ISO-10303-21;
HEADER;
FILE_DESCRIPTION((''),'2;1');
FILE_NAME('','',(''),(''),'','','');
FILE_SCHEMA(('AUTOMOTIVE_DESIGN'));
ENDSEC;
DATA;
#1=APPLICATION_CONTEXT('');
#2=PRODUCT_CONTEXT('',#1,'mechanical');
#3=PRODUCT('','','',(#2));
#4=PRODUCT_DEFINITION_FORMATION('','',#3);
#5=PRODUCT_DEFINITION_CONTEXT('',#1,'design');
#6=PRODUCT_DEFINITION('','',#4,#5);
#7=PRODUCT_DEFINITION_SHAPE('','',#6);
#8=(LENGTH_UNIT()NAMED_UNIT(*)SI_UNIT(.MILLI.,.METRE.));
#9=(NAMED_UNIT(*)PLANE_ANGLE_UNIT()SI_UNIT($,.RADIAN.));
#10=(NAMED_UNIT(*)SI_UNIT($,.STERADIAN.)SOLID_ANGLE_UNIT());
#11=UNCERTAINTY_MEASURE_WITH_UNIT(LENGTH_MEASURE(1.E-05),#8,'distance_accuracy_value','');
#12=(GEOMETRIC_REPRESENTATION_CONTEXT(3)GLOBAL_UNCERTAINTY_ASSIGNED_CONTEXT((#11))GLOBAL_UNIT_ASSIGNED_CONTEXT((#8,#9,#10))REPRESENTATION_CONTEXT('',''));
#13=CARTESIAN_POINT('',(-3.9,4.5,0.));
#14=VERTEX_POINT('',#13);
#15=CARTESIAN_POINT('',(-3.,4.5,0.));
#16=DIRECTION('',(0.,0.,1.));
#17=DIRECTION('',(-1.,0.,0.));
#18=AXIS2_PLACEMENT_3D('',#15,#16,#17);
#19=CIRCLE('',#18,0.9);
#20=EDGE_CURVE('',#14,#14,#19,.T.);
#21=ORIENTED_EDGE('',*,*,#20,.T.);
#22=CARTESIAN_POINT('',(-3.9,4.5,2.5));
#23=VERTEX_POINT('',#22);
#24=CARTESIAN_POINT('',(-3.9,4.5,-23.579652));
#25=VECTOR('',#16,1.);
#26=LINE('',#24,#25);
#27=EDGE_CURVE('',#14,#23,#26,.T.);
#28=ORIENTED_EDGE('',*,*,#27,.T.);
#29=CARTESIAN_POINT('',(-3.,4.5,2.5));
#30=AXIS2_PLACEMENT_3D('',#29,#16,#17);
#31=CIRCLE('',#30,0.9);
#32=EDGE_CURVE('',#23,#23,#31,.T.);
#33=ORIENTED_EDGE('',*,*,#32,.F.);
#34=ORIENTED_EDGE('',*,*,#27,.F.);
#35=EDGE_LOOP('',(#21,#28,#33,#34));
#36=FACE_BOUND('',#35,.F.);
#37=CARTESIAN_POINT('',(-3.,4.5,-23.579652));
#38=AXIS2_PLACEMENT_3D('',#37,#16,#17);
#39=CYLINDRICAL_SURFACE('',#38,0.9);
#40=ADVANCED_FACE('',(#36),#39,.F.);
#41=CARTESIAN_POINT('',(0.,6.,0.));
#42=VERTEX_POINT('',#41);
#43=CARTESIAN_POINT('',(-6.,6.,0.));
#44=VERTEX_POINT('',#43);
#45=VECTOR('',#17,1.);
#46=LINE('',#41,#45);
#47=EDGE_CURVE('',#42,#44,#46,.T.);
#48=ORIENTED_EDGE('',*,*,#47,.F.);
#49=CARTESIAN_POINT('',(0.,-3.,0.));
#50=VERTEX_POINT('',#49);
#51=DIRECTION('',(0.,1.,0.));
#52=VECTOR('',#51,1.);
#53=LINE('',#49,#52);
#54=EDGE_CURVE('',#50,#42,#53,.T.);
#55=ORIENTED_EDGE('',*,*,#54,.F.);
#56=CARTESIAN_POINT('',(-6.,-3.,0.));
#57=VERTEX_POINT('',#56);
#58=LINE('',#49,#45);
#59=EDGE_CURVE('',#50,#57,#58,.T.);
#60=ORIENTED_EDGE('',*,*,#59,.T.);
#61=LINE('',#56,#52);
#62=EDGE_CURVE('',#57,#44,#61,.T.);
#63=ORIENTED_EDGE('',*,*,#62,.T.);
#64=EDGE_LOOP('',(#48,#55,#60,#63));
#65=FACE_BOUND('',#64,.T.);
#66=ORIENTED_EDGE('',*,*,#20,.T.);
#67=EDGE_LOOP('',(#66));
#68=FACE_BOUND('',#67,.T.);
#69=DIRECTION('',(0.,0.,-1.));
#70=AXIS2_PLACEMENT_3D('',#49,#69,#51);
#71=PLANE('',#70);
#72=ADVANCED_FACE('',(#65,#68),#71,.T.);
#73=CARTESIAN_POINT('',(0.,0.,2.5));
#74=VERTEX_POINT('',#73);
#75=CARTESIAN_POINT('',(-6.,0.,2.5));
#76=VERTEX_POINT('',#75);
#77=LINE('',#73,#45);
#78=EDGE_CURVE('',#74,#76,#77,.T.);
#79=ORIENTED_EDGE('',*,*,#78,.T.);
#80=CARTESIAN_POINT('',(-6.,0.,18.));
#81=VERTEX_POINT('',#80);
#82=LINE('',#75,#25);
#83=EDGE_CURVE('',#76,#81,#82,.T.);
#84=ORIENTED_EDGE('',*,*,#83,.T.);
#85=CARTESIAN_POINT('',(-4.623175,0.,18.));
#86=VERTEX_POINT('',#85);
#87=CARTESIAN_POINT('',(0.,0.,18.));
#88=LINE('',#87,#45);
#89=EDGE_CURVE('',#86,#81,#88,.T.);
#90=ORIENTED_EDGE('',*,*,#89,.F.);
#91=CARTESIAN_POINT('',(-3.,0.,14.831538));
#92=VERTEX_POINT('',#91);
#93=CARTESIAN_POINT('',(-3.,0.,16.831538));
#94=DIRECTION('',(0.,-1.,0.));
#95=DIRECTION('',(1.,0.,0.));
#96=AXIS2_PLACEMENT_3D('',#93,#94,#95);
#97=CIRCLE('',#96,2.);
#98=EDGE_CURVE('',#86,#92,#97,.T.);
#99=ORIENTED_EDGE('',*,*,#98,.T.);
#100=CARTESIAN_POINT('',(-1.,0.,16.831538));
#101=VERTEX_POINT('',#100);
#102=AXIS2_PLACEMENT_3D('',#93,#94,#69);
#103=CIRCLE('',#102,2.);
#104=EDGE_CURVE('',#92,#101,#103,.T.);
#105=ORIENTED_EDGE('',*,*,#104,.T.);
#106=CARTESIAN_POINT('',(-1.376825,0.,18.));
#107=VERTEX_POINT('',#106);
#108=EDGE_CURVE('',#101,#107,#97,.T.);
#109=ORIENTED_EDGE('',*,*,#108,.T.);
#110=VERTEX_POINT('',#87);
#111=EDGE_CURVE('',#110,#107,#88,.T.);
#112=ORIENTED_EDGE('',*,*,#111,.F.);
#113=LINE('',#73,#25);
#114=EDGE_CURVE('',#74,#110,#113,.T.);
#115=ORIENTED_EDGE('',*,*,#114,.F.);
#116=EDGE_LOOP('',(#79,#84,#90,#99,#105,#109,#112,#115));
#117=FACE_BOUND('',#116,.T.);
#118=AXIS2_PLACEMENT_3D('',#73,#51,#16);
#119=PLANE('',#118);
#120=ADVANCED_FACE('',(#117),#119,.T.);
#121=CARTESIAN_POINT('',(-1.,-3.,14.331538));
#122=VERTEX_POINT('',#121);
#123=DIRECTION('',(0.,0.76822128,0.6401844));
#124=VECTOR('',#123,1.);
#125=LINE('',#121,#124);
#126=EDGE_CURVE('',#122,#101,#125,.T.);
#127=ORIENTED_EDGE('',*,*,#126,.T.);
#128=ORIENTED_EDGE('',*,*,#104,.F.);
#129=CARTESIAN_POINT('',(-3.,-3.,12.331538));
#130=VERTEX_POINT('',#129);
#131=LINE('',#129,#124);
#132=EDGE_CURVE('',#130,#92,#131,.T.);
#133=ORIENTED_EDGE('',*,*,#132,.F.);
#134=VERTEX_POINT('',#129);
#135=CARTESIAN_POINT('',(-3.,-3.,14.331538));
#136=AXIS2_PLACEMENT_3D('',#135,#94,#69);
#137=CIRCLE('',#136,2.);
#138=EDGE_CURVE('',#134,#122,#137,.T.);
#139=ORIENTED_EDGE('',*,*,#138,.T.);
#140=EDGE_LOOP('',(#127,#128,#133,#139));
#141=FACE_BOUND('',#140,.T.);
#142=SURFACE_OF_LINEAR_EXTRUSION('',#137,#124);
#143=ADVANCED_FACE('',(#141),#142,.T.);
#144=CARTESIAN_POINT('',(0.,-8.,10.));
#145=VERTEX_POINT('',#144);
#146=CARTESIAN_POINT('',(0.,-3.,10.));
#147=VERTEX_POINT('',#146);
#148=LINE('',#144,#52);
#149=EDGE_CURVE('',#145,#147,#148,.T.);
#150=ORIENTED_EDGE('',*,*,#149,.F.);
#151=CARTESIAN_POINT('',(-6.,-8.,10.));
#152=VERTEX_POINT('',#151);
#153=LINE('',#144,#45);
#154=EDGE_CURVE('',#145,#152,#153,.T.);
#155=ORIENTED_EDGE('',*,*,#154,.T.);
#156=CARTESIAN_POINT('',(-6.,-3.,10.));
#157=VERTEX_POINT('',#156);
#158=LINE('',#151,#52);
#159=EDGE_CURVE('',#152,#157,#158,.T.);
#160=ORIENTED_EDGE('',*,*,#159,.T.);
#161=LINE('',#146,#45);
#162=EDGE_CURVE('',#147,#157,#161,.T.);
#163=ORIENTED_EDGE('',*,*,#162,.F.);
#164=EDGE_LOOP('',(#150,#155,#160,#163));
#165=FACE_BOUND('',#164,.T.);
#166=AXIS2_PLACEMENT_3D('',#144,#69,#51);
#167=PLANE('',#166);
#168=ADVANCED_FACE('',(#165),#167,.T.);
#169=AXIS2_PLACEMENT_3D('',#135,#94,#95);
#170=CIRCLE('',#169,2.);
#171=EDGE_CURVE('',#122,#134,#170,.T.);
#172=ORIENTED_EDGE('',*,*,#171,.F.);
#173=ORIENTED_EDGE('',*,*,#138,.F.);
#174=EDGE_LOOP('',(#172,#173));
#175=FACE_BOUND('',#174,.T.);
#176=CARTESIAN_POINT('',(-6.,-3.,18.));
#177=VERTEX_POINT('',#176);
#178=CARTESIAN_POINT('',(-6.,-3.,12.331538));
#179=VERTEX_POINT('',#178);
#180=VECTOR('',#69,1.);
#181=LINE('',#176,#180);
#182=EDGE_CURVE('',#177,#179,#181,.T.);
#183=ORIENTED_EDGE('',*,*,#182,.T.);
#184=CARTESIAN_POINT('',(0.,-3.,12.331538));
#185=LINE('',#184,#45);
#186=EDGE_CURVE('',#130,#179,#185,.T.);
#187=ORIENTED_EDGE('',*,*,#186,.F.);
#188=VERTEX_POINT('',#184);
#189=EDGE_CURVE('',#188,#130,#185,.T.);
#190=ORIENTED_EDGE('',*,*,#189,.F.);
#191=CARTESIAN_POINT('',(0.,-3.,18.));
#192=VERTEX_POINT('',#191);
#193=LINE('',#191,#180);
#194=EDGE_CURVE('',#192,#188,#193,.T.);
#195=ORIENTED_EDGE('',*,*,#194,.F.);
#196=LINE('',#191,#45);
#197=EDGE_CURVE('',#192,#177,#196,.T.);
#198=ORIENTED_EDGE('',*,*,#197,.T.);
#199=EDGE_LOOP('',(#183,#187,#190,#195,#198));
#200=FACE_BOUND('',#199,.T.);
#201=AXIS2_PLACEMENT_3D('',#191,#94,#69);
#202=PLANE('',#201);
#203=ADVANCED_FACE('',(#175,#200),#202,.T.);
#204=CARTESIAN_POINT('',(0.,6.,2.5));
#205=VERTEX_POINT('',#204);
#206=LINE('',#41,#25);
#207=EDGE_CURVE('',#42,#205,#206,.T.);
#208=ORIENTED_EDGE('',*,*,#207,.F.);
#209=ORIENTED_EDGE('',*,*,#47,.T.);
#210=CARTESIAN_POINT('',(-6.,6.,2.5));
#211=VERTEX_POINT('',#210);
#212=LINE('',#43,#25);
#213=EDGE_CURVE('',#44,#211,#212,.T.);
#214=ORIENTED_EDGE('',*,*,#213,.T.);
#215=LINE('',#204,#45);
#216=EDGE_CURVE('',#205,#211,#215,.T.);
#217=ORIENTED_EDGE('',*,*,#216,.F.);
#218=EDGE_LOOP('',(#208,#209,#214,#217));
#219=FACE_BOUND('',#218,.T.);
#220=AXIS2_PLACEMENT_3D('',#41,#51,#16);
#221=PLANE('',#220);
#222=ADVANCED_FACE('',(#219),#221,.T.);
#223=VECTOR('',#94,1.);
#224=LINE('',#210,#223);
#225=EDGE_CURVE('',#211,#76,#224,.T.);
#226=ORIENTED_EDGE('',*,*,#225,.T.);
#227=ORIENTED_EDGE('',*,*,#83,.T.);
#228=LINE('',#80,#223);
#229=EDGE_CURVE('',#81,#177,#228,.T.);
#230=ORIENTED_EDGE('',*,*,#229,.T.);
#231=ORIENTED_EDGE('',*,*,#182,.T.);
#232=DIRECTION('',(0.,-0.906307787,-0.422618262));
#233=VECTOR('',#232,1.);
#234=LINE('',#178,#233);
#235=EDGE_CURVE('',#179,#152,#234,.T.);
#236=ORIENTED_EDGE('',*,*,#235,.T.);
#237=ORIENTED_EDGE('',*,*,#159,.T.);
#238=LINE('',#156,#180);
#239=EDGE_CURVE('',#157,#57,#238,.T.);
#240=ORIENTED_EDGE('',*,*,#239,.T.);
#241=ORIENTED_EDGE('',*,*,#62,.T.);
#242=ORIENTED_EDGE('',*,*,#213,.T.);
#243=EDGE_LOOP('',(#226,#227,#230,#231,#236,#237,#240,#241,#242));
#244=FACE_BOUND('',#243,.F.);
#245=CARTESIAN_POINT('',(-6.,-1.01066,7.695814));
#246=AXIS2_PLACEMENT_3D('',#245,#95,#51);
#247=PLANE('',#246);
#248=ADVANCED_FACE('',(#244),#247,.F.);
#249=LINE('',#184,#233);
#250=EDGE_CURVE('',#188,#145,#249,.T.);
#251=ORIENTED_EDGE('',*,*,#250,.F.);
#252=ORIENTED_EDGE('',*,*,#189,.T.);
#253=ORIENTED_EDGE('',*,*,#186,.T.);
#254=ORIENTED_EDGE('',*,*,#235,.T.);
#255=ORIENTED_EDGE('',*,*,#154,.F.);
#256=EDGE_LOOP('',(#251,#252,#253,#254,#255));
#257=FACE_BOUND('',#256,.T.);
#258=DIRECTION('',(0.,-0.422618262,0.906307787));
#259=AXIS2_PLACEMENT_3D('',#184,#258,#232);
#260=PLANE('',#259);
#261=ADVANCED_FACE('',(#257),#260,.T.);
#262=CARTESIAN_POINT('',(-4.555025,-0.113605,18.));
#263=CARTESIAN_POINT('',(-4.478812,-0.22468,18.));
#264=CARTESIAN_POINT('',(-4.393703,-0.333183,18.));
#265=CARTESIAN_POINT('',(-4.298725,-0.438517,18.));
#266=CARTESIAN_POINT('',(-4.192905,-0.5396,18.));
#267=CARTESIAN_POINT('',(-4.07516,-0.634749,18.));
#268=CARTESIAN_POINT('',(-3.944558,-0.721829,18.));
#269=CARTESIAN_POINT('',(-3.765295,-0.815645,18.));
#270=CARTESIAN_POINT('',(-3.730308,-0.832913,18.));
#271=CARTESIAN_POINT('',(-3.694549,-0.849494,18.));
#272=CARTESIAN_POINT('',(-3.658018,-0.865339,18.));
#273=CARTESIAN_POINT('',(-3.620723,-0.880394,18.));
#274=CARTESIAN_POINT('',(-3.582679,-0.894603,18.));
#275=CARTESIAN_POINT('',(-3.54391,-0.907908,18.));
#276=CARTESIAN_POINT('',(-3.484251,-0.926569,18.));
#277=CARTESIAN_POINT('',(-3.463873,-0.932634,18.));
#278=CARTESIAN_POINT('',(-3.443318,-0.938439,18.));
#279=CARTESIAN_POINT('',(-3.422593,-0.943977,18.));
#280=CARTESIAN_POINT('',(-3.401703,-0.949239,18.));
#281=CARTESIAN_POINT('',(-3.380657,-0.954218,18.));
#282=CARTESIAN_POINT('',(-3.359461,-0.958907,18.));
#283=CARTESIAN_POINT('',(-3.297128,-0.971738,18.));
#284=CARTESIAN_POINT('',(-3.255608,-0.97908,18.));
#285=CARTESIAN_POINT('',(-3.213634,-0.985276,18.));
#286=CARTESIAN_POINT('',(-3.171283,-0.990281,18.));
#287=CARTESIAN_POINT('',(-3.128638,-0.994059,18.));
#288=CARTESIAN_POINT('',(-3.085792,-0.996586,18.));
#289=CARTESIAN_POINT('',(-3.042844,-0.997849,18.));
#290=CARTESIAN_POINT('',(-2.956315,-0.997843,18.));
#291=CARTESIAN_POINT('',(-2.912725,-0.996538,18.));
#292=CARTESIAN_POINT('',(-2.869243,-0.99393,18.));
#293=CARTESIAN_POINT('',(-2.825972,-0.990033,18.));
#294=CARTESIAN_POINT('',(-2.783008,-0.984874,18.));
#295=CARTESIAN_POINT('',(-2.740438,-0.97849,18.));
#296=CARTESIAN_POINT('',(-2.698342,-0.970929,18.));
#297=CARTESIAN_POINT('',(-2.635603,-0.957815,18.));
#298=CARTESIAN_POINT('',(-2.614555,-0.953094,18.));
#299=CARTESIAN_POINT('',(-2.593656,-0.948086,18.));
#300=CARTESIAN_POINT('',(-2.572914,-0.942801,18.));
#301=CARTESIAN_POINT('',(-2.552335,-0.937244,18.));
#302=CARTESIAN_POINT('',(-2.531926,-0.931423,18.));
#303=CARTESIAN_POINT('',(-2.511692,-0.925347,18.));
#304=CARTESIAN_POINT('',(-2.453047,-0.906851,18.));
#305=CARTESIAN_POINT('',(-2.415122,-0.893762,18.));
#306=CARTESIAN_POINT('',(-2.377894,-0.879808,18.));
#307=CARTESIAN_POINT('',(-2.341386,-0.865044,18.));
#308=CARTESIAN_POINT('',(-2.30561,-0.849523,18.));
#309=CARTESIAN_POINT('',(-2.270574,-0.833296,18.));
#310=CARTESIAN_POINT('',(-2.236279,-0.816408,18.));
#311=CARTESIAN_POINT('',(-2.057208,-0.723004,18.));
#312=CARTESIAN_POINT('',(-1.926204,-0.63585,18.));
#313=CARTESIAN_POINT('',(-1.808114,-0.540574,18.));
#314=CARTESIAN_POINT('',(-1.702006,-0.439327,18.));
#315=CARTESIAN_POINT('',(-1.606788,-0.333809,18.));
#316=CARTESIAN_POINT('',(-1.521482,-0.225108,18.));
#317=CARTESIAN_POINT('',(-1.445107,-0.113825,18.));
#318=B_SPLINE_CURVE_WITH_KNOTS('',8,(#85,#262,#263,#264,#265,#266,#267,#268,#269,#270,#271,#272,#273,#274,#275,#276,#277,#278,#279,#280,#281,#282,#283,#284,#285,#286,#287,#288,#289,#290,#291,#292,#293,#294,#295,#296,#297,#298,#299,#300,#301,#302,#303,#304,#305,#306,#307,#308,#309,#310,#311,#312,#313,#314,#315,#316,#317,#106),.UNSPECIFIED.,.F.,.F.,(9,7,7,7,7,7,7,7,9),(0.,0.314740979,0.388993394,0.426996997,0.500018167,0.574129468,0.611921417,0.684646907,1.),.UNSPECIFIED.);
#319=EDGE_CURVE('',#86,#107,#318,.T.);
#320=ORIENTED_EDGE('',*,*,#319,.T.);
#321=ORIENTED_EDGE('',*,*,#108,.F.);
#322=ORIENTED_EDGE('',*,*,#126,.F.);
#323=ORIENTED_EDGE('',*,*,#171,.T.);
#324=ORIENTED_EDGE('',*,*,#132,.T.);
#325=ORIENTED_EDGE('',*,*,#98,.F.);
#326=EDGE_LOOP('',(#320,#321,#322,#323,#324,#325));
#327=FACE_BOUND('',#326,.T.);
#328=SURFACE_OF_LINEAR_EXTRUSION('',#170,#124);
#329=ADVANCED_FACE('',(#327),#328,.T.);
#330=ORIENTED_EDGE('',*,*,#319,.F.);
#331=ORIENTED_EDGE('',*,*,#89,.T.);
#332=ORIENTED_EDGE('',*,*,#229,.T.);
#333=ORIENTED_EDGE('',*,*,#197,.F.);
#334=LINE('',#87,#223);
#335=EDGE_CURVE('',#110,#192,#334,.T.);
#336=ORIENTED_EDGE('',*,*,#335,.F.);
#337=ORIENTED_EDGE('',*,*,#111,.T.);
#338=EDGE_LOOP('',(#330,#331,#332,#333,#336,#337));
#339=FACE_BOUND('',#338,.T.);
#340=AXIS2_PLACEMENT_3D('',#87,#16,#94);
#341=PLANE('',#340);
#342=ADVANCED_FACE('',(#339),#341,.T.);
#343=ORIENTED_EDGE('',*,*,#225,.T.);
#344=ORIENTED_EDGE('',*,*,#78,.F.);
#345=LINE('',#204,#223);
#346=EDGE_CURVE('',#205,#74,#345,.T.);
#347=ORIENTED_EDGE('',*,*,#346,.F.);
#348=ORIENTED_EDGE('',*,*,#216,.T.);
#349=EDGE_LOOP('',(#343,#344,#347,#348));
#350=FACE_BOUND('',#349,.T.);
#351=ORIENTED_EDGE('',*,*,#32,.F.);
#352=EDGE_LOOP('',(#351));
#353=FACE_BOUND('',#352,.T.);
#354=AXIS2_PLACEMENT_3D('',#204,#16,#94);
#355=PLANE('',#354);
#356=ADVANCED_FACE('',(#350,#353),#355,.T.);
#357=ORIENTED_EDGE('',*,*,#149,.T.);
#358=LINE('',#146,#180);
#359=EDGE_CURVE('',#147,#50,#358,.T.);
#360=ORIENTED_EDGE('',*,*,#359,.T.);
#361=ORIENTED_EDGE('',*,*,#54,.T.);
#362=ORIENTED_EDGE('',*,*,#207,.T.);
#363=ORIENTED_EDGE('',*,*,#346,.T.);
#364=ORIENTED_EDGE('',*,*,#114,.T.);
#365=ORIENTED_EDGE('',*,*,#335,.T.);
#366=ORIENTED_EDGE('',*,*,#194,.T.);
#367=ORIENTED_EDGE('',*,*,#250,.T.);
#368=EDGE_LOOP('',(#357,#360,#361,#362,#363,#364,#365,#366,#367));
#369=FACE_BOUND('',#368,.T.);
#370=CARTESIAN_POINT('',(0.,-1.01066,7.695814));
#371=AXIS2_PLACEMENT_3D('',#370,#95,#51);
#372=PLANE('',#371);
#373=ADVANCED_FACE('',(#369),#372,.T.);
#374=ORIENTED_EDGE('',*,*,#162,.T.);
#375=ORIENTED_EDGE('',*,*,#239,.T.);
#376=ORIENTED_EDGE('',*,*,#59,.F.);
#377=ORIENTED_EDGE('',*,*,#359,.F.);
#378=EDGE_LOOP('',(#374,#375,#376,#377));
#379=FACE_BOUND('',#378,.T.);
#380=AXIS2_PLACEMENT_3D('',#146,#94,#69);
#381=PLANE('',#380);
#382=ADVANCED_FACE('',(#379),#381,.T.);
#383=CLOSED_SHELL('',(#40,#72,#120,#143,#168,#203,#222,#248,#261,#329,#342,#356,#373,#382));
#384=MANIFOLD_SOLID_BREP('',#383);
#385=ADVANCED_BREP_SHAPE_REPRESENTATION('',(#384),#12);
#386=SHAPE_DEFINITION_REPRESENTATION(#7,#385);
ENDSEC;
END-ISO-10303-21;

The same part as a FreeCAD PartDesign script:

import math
import FreeCAD as App
import Part
import Sketcher
Q = App.Units.Quantity


def add_polygon(sketch, points):
    """Adds a closed chain of lines whose ends are joined by coincident constraints."""
    first, n = sketch.GeometryCount, len(points)
    for a, b in zip(points, points[1:] + points[:1]):
        sketch.addGeometry(Part.LineSegment(App.Vector(*a, 0), App.Vector(*b, 0)), False)
    for i in range(n):
        sketch.addConstraint(Sketcher.Constraint("Coincident", first + i, 2, first + (i + 1) % n, 1))

doc = App.newDocument("Part")
params = doc.addObject("Spreadsheet::Sheet", "Params")
for row, (alias, value) in enumerate([
    ("sketch1_width", "9 mm"),
    ("sketch1_width2", "6 mm"),
    ("sketch1_width3", "5 mm"),
    ("sketch1_height", "10 mm"),
    ("sketch1_height2", "2.5 mm"),
    ("pad1_length", "6 mm"),
    ("sketch2_diameter", "1.8 mm"),
    ("hole_diameter", "1.8 mm"),
    ("sketch3_radius", "2 mm"),
], start=1):
    params.set(f"A{row}", alias)
    params.set(f"B{row}", "=" + value)
    params.setAlias(f"B{row}", alias)

body = doc.addObject("PartDesign::Body", "Body")

sketch1 = body.newObject("Sketcher::SketchObject", "Sketch")
sketch1.AttachmentSupport = (doc.getObject("YZ_Plane"), [""])
sketch1.MapMode = "FlatFace"
add_polygon(sketch1, [(-3, 0), (6, 0), (6, 2.5), (0, 2.5), (0, 18), (-3, 18), (-3, 12.331538), (-8, 10), (-3, 10)])
sketch1.addConstraint(Sketcher.Constraint("Horizontal", 0))
sketch1.addConstraint(Sketcher.Constraint("Vertical", 1))
sketch1.addConstraint(Sketcher.Constraint("Horizontal", 2))
sketch1.addConstraint(Sketcher.Constraint("Vertical", 3))
sketch1.addConstraint(Sketcher.Constraint("Horizontal", 4))
sketch1.addConstraint(Sketcher.Constraint("Vertical", 5))
sketch1.addConstraint(Sketcher.Constraint("Horizontal", 7))
sketch1.addConstraint(Sketcher.Constraint("Vertical", 8))
sketch1.addConstraint(Sketcher.Constraint("PointOnObject", 0, 2, -1))
sketch1.addConstraint(Sketcher.Constraint("PointOnObject", 2, 2, -2))
sketch1.addConstraint(Sketcher.Constraint("Vertical", 5, 2, 7, 2))
sketch1.addConstraint(Sketcher.Constraint("DistanceX", 0, 1, 0, 2, 9.0))
sketch1.addConstraint(Sketcher.Constraint("DistanceX", 2, 2, 2, 1, 6.0))
sketch1.addConstraint(Sketcher.Constraint("DistanceX", 7, 1, 7, 2, 5.0))
sketch1.addConstraint(Sketcher.Constraint("DistanceY", 8, 2, 8, 1, 10.0))
sketch1.addConstraint(Sketcher.Constraint("Angle", 6, Q("-155 deg")))
sketch1.addConstraint(Sketcher.Constraint("DistanceY", 1, 1, 1, 2, 2.5))
sketch1.addConstraint(Sketcher.Constraint("DistanceY", 3, 1, 3, 2, 15.5))
sketch1.setExpression("Constraints[20]", "Params.sketch1_width")
sketch1.setExpression("Constraints[21]", "Params.sketch1_width2")
sketch1.setExpression("Constraints[22]", "Params.sketch1_width3")
sketch1.setExpression("Constraints[23]", "Params.sketch1_height")
sketch1.setExpression("Constraints[25]", "Params.sketch1_height2")
pad1 = body.newObject("PartDesign::Pad", "Pad")
pad1.Profile = sketch1
pad1.setExpression("Length", "Params.pad1_length")
pad1.Reversed = True

sketch2 = body.newObject("Sketcher::SketchObject", "Sketch001")
sketch2.AttachmentSupport = (doc.getObject("XY_Plane"), [""])
sketch2.MapMode = "FlatFace"
sketch2.addGeometry(Part.Circle(App.Vector(-3, 4.5, 0), App.Vector(0, 0, 1), 0.9), False)
sketch2.addConstraint(Sketcher.Constraint("Diameter", 0, 1.8))
sketch2.addConstraint(Sketcher.Constraint("DistanceX", 0, 3, -1, 1, 3.0))
sketch2.addConstraint(Sketcher.Constraint("DistanceY", -1, 1, 0, 3, 4.5))
sketch2.setExpression("Constraints[0]", "Params.sketch2_diameter")
doc.recompute()
hole = body.newObject("PartDesign::Hole", "Hole")
hole.Profile = sketch2
hole.ThreadType = "None"
hole.setExpression("Diameter", "Params.hole_diameter")
hole.DepthType = "ThroughAll"
hole.Reversed = True

sketch3 = body.newObject("Sketcher::SketchObject", "Sketch002")
sketch3.AttachmentSupport = (doc.getObject("XZ_Plane"), [""])
sketch3.MapMode = "FlatFace"
sketch3.AttachmentOffset = App.Placement(App.Vector(0, 0, 3), App.Rotation())
sketch3.addGeometry(Part.ArcOfCircle(Part.Circle(App.Vector(-3, 14.331538, 0), App.Vector(0, 0, 1), 2), math.radians(-90), math.radians(0)), False)
sketch3.addGeometry(Part.ArcOfCircle(Part.Circle(App.Vector(-3, 14.331538, 0), App.Vector(0, 0, 1), 2), math.radians(0), math.radians(270)), False)
sketch3.addConstraint(Sketcher.Constraint("Tangent", 0, 1, 1, 2))
sketch3.addConstraint(Sketcher.Constraint("Coincident", 1, 1, 0, 2))
sketch3.addConstraint(Sketcher.Constraint("Horizontal", 0, 3, 1, 1))
sketch3.addConstraint(Sketcher.Constraint("Vertical", 1, 3, 0, 1))
sketch3.addConstraint(Sketcher.Constraint("Radius", 0, 2.0))
sketch3.addConstraint(Sketcher.Constraint("DistanceX", 0, 3, -1, 1, 3.0))
sketch3.addConstraint(Sketcher.Constraint("DistanceY", -1, 1, 0, 3, 14.331538))
sketch3.setExpression("Constraints[4]", "Params.sketch3_radius")

sketch4 = body.newObject("Sketcher::SketchObject", "Sketch003")
sketch4.Placement = App.Placement(App.Vector(0, -8.277806, 9.933367), App.Rotation(App.Vector(0, -0.76822128, -0.6401844), App.Vector(1.000000001, 0, 0), App.Vector(0, -0.6401844, 0.76822128), "ZXY"))
sketch4.addGeometry(Part.LineSegment(App.Vector(-6.870163, 0, 0), App.Vector(-10.775288, 0, 0)), False)
sketch4.addConstraint(Sketcher.Constraint("Horizontal", 0))
sketch4.addConstraint(Sketcher.Constraint("PointOnObject", 0, 1, -1))
sketch4.addConstraint(Sketcher.Constraint("DistanceX", 0, 2, 0, 1, 3.905125))
sketch4.addConstraint(Sketcher.Constraint("DistanceX", 0, 2, -1, 1, 10.775288))
doc.recompute()

subtractivepipe = body.newObject("PartDesign::SubtractivePipe", "SubtractivePipe")
subtractivepipe.Profile = sketch3
subtractivepipe.Spine = (sketch4, ["Edge1"])

doc.recompute()
